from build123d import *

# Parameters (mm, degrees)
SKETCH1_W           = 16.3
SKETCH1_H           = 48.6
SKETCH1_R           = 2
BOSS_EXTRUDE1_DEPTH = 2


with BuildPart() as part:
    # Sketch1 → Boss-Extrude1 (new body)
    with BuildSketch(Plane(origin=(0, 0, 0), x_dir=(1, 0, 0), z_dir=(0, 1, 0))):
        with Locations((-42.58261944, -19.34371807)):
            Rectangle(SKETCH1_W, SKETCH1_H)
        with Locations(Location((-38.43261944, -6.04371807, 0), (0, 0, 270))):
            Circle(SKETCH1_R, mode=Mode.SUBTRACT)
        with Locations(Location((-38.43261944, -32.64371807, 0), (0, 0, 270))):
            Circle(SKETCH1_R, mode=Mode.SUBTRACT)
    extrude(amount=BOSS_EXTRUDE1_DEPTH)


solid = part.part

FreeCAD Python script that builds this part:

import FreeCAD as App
import Part
import Sketcher
from FreeCAD import Vector


def add_polygon(sketch, points):
    """Adds a closed chain of lines whose ends are joined by coincident constraints."""
    first, n = sketch.GeometryCount, len(points)
    for a, b in zip(points, points[1:] + points[:1]):
        sketch.addGeometry(Part.LineSegment(App.Vector(*a, 0), App.Vector(*b, 0)), False)
    for i in range(n):
        sketch.addConstraint(Sketcher.Constraint("Coincident", first + i, 2, first + (i + 1) % n, 1))

doc = App.newDocument("Part")
body = doc.addObject("PartDesign::Body", "Body")

# Sketch on XZ plane
sketch1 = body.newObject("Sketcher::SketchObject", "Sketch")
sketch1.AttachmentSupport = (doc.getObject("XZ_Plane"), [""])
sketch1.MapMode = "FlatFace"
add_polygon(sketch1, [(-50.7, -5), (-50.7, 43.6), (-34.4, 43.6), (-34.4, -5)])  # lines 0-3
sketch1.addGeometry(Part.Circle(Vector(-38.4, 32.6, 0), Vector(0, 0, 1), 2), False)  # 4
sketch1.addGeometry(Part.Circle(Vector(-38.4, 6, 0), Vector(0, 0, 1), 2), False)  # 5
sketch1.addConstraint(Sketcher.Constraint("Vertical", 0))
sketch1.addConstraint(Sketcher.Constraint("Horizontal", 1))
sketch1.addConstraint(Sketcher.Constraint("Vertical", 2))
sketch1.addConstraint(Sketcher.Constraint("Horizontal", 3))
sketch1.addConstraint(Sketcher.Constraint("Equal", 4, 5))
sketch1.addConstraint(Sketcher.Constraint("Vertical", 4, 3, 5, 3))
sketch1.addConstraint(Sketcher.Constraint("Diameter", 4, 4.0))
sketch1.addConstraint(Sketcher.Constraint("DistanceX", 1, 1, 1, 2, 16.3))
sketch1.addConstraint(Sketcher.Constraint("DistanceY", 0, 1, 0, 2, 48.6))
sketch1.addConstraint(Sketcher.Constraint("DistanceY", 4, 3, 0, 2, 11.0))
sketch1.addConstraint(Sketcher.Constraint("DistanceX", 4, 3, 1, 2, 4.0))
sketch1.addConstraint(Sketcher.Constraint("DistanceY", 2, 2, 5, 3, 11.0))
sketch1.addConstraint(Sketcher.Constraint("DistanceX", 4, 3, -1, 1, 38.432619))
sketch1.addConstraint(Sketcher.Constraint("DistanceY", -1, 1, 4, 3, 32.643718))
pad1 = body.newObject("PartDesign::Pad", "Pad")
pad1.Profile = sketch1
pad1.Length = 2
pad1.Reversed = True

doc.recompute()
